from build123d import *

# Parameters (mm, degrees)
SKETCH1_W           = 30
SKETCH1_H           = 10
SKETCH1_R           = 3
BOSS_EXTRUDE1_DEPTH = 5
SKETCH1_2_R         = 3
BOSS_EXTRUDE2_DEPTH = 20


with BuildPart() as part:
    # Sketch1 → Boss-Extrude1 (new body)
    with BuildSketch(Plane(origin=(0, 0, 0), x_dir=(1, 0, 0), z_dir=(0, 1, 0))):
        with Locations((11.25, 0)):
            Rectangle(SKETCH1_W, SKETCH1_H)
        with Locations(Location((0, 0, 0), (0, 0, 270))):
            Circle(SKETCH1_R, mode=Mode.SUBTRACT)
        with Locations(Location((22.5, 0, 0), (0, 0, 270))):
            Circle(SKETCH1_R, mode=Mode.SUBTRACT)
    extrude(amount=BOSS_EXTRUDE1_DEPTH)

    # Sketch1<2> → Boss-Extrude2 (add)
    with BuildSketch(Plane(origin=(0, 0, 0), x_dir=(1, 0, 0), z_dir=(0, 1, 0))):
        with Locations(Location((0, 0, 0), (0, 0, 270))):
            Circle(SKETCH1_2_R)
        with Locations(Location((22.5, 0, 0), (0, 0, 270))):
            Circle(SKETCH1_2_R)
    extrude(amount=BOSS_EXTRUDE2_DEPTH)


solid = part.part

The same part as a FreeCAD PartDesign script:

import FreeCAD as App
import Part
import Sketcher


def add_polygon(sketch, points):
    """Adds a closed chain of lines whose ends are joined by coincident constraints."""
    first, n = sketch.GeometryCount, len(points)
    for a, b in zip(points, points[1:] + points[:1]):
        sketch.addGeometry(Part.LineSegment(App.Vector(*a, 0), App.Vector(*b, 0)), False)
    for i in range(n):
        sketch.addConstraint(Sketcher.Constraint("Coincident", first + i, 2, first + (i + 1) % n, 1))

doc = App.newDocument("Part")
body = doc.addObject("PartDesign::Body", "Body")

# Sketch on XZ plane
sketch1 = doc.addObject("Sketcher::SketchObject", "Sketch")
body.addObject(sketch1)
sketch1.AttachmentSupport = (doc.XZ_Plane, [""])
sketch1.MapMode = "FlatFace"
add_polygon(sketch1, [(-3.8, -5), (-3.8, 5), (26.2, 5), (26.2, -5)])  # lines 0-3
sketch1.addGeometry(Part.Circle(App.Vector(0, 0, 0), App.Vector(0, 0, 1), 3), False)  # 4
sketch1.addGeometry(Part.Circle(App.Vector(22.5, 0, 0), App.Vector(0, 0, 1), 3), False)  # 5
sketch1.addConstraint([
    Sketcher.Constraint("Vertical", 0),
    Sketcher.Constraint("Horizontal", 1),
    Sketcher.Constraint("Vertical", 2),
    Sketcher.Constraint("Horizontal", 3),
    Sketcher.Constraint("Coincident", 4, 3, -1, 1),
    Sketcher.Constraint("Equal", 4, 5),
    Sketcher.Constraint("PointOnObject", 5, 3, -1),
    Sketcher.Constraint("Diameter", 4, 6.0),
    Sketcher.Constraint("DistanceX", 1, 1, 1, 2, 30.0),
    Sketcher.Constraint("DistanceY", 0, 1, 0, 2, 10.0),
    Sketcher.Constraint("DistanceY", -1, 1, 0, 2, 5.0),
    Sketcher.Constraint("DistanceX", -1, 1, 5, 3, 22.5),
    Sketcher.Constraint("DistanceX", 0, 2, -1, 1, 3.75),
])
pad1 = doc.addObject("PartDesign::Pad", "Pad")
body.addObject(pad1)
pad1.Profile = sketch1
pad1.Length = 5
pad1.Reversed = True

# Sketch on XZ plane
sketch2 = doc.addObject("Sketcher::SketchObject", "Sketch001")
body.addObject(sketch2)
sketch2.AttachmentSupport = (doc.XZ_Plane, [""])
sketch2.MapMode = "FlatFace"
sketch2.addGeometry([
    Part.Circle(App.Vector(0, 0, 0), App.Vector(0, 0, 1), 3),
    Part.Circle(App.Vector(22.5, 0, 0), App.Vector(0, 0, 1), 3),
], False)
sketch2.addConstraint([
    Sketcher.Constraint("Coincident", 0, 3, -1, 1),
    Sketcher.Constraint("Equal", 0, 1),
    Sketcher.Constraint("PointOnObject", 1, 3, -1),
    Sketcher.Constraint("Diameter", 0, 6.0),
    Sketcher.Constraint("DistanceX", -1, 1, 1, 3, 22.5),
])
pad2 = doc.addObject("PartDesign::Pad", "Pad001")
body.addObject(pad2)
pad2.Profile = sketch2
pad2.Length = 20
pad2.Reversed = True

doc.recompute()
